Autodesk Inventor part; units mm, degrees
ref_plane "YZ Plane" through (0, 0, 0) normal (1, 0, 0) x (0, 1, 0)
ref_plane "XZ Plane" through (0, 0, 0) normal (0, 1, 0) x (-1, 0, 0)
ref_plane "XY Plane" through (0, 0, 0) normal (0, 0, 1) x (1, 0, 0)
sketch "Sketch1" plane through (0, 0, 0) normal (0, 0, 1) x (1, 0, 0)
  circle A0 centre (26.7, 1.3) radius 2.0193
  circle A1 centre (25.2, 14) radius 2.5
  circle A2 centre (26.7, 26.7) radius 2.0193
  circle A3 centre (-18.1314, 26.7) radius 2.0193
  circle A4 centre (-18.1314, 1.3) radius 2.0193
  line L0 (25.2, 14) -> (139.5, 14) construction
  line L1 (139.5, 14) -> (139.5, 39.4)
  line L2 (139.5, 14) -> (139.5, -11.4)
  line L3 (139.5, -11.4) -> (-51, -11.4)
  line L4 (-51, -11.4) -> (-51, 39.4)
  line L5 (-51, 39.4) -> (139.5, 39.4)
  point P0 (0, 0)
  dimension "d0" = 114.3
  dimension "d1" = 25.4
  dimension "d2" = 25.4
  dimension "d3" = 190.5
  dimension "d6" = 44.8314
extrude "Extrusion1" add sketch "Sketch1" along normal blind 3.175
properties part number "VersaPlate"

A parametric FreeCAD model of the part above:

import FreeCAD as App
import Part
import Sketcher
from FreeCAD import Vector
Q = App.Units.Quantity

doc = App.newDocument("Part")
params = doc.addObject("Spreadsheet::Sheet", "Params")
for row, (alias, value) in enumerate([
    ("sketch1_width", "7.5 in"),
    ("sketch1_diameter", "0.159 in"),
    ("pad1_length", "0.125 in"),
], start=1):
    params.set(f"A{row}", alias)
    params.set(f"B{row}", "=" + value)
    params.setAlias(f"B{row}", alias)

body = doc.addObject("PartDesign::Body", "Body")

sketch1 = doc.addObject("Sketcher::SketchObject", "Sketch")
body.addObject(sketch1)
sketch1.AttachmentSupport = (doc.XY_Plane, [""])
sketch1.MapMode = "FlatFace"
sketch1.addGeometry(Part.LineSegment(Vector(139.5, -11.4, 0), Vector(139.5, 39.4, 0)), False)
sketch1.addGeometry(Part.LineSegment(Vector(139.5, 39.4, 0), Vector(-51, 39.4, 0)), False)
sketch1.addGeometry(Part.LineSegment(Vector(-51, 39.4, 0), Vector(-51, -11.4, 0)), False)
sketch1.addGeometry(Part.LineSegment(Vector(-51, -11.4, 0), Vector(139.5, -11.4, 0)), False)
sketch1.addGeometry(Part.Circle(Vector(-18.1, 1.3, 0), Vector(0, 0, 1), 2), False)
sketch1.addGeometry(Part.Circle(Vector(26.7, 1.3, 0), Vector(0, 0, 1), 2), False)
sketch1.addGeometry(Part.Circle(Vector(25.2, 14, 0), Vector(0, 0, 1), 2.5), False)
sketch1.addGeometry(Part.Circle(Vector(-18.1, 26.7, 0), Vector(0, 0, 1), 2), False)
sketch1.addGeometry(Part.Circle(Vector(26.7, 26.7, 0), Vector(0, 0, 1), 2), False)
sketch1.addConstraint(Sketcher.Constraint("Coincident", 0, 2, 1, 1))
sketch1.addConstraint(Sketcher.Constraint("Coincident", 1, 2, 2, 1))
sketch1.addConstraint(Sketcher.Constraint("Coincident", 2, 2, 3, 1))
sketch1.addConstraint(Sketcher.Constraint("Coincident", 3, 2, 0, 1))
sketch1.addConstraint(Sketcher.Constraint("Vertical", 0))
sketch1.addConstraint(Sketcher.Constraint("Horizontal", 1))
sketch1.addConstraint(Sketcher.Constraint("Vertical", 2))
sketch1.addConstraint(Sketcher.Constraint("Horizontal", 3))
sketch1.addConstraint(Sketcher.Constraint("Equal", 4, 5))
sketch1.addConstraint(Sketcher.Constraint("Equal", 5, 7))
sketch1.addConstraint(Sketcher.Constraint("Equal", 7, 8))
sketch1.addConstraint(Sketcher.Constraint("Horizontal", 4, 3, 5, 3))
sketch1.addConstraint(Sketcher.Constraint("Horizontal", 7, 3, 8, 3))
sketch1.addConstraint(Sketcher.Constraint("Vertical", 4, 3, 7, 3))
sketch1.addConstraint(Sketcher.Constraint("Vertical", 5, 3, 8, 3))
sketch1.addConstraint(Sketcher.Constraint("DistanceX", 1, 2, 1, 1, Q("7.5 in")))
sketch1.addConstraint(Sketcher.Constraint("DistanceY", 4, 3, 7, 3, Q("1 in")))
sketch1.addConstraint(Sketcher.Constraint("DistanceY", 6, 3, 0, 2, Q("1 in")))
sketch1.addConstraint(Sketcher.Constraint("DistanceY", 2, 2, 6, 3, Q("1 in")))
sketch1.addConstraint(Sketcher.Constraint("DistanceX", 6, 3, 0, 2, Q("4.5 in")))
sketch1.addConstraint(Sketcher.Constraint("Diameter", 4, Q("0.159 in")))
sketch1.addConstraint(Sketcher.Constraint("DistanceY", 5, 3, 6, 3, Q("0.5 in")))
sketch1.addConstraint(Sketcher.Constraint("Diameter", 6, 5.0))
sketch1.addConstraint(Sketcher.Constraint("DistanceX", 4, 3, 5, 3, 44.8314))
sketch1.addConstraint(Sketcher.Constraint("DistanceX", 4, 3, -1, 1, 18.1314))
sketch1.addConstraint(Sketcher.Constraint("DistanceY", -1, 1, 4, 3, 1.3))
sketch1.addConstraint(Sketcher.Constraint("DistanceX", -1, 1, 6, 3, 25.2))
sketch1.setExpression("Constraints[15]", "Params.sketch1_width")
sketch1.setExpression("Constraints[20]", "Params.sketch1_diameter")
pad1 = doc.addObject("PartDesign::Pad", "Pad")
body.addObject(pad1)
pad1.Profile = sketch1
pad1.setExpression("Length", "Params.pad1_length")

doc.recompute()
